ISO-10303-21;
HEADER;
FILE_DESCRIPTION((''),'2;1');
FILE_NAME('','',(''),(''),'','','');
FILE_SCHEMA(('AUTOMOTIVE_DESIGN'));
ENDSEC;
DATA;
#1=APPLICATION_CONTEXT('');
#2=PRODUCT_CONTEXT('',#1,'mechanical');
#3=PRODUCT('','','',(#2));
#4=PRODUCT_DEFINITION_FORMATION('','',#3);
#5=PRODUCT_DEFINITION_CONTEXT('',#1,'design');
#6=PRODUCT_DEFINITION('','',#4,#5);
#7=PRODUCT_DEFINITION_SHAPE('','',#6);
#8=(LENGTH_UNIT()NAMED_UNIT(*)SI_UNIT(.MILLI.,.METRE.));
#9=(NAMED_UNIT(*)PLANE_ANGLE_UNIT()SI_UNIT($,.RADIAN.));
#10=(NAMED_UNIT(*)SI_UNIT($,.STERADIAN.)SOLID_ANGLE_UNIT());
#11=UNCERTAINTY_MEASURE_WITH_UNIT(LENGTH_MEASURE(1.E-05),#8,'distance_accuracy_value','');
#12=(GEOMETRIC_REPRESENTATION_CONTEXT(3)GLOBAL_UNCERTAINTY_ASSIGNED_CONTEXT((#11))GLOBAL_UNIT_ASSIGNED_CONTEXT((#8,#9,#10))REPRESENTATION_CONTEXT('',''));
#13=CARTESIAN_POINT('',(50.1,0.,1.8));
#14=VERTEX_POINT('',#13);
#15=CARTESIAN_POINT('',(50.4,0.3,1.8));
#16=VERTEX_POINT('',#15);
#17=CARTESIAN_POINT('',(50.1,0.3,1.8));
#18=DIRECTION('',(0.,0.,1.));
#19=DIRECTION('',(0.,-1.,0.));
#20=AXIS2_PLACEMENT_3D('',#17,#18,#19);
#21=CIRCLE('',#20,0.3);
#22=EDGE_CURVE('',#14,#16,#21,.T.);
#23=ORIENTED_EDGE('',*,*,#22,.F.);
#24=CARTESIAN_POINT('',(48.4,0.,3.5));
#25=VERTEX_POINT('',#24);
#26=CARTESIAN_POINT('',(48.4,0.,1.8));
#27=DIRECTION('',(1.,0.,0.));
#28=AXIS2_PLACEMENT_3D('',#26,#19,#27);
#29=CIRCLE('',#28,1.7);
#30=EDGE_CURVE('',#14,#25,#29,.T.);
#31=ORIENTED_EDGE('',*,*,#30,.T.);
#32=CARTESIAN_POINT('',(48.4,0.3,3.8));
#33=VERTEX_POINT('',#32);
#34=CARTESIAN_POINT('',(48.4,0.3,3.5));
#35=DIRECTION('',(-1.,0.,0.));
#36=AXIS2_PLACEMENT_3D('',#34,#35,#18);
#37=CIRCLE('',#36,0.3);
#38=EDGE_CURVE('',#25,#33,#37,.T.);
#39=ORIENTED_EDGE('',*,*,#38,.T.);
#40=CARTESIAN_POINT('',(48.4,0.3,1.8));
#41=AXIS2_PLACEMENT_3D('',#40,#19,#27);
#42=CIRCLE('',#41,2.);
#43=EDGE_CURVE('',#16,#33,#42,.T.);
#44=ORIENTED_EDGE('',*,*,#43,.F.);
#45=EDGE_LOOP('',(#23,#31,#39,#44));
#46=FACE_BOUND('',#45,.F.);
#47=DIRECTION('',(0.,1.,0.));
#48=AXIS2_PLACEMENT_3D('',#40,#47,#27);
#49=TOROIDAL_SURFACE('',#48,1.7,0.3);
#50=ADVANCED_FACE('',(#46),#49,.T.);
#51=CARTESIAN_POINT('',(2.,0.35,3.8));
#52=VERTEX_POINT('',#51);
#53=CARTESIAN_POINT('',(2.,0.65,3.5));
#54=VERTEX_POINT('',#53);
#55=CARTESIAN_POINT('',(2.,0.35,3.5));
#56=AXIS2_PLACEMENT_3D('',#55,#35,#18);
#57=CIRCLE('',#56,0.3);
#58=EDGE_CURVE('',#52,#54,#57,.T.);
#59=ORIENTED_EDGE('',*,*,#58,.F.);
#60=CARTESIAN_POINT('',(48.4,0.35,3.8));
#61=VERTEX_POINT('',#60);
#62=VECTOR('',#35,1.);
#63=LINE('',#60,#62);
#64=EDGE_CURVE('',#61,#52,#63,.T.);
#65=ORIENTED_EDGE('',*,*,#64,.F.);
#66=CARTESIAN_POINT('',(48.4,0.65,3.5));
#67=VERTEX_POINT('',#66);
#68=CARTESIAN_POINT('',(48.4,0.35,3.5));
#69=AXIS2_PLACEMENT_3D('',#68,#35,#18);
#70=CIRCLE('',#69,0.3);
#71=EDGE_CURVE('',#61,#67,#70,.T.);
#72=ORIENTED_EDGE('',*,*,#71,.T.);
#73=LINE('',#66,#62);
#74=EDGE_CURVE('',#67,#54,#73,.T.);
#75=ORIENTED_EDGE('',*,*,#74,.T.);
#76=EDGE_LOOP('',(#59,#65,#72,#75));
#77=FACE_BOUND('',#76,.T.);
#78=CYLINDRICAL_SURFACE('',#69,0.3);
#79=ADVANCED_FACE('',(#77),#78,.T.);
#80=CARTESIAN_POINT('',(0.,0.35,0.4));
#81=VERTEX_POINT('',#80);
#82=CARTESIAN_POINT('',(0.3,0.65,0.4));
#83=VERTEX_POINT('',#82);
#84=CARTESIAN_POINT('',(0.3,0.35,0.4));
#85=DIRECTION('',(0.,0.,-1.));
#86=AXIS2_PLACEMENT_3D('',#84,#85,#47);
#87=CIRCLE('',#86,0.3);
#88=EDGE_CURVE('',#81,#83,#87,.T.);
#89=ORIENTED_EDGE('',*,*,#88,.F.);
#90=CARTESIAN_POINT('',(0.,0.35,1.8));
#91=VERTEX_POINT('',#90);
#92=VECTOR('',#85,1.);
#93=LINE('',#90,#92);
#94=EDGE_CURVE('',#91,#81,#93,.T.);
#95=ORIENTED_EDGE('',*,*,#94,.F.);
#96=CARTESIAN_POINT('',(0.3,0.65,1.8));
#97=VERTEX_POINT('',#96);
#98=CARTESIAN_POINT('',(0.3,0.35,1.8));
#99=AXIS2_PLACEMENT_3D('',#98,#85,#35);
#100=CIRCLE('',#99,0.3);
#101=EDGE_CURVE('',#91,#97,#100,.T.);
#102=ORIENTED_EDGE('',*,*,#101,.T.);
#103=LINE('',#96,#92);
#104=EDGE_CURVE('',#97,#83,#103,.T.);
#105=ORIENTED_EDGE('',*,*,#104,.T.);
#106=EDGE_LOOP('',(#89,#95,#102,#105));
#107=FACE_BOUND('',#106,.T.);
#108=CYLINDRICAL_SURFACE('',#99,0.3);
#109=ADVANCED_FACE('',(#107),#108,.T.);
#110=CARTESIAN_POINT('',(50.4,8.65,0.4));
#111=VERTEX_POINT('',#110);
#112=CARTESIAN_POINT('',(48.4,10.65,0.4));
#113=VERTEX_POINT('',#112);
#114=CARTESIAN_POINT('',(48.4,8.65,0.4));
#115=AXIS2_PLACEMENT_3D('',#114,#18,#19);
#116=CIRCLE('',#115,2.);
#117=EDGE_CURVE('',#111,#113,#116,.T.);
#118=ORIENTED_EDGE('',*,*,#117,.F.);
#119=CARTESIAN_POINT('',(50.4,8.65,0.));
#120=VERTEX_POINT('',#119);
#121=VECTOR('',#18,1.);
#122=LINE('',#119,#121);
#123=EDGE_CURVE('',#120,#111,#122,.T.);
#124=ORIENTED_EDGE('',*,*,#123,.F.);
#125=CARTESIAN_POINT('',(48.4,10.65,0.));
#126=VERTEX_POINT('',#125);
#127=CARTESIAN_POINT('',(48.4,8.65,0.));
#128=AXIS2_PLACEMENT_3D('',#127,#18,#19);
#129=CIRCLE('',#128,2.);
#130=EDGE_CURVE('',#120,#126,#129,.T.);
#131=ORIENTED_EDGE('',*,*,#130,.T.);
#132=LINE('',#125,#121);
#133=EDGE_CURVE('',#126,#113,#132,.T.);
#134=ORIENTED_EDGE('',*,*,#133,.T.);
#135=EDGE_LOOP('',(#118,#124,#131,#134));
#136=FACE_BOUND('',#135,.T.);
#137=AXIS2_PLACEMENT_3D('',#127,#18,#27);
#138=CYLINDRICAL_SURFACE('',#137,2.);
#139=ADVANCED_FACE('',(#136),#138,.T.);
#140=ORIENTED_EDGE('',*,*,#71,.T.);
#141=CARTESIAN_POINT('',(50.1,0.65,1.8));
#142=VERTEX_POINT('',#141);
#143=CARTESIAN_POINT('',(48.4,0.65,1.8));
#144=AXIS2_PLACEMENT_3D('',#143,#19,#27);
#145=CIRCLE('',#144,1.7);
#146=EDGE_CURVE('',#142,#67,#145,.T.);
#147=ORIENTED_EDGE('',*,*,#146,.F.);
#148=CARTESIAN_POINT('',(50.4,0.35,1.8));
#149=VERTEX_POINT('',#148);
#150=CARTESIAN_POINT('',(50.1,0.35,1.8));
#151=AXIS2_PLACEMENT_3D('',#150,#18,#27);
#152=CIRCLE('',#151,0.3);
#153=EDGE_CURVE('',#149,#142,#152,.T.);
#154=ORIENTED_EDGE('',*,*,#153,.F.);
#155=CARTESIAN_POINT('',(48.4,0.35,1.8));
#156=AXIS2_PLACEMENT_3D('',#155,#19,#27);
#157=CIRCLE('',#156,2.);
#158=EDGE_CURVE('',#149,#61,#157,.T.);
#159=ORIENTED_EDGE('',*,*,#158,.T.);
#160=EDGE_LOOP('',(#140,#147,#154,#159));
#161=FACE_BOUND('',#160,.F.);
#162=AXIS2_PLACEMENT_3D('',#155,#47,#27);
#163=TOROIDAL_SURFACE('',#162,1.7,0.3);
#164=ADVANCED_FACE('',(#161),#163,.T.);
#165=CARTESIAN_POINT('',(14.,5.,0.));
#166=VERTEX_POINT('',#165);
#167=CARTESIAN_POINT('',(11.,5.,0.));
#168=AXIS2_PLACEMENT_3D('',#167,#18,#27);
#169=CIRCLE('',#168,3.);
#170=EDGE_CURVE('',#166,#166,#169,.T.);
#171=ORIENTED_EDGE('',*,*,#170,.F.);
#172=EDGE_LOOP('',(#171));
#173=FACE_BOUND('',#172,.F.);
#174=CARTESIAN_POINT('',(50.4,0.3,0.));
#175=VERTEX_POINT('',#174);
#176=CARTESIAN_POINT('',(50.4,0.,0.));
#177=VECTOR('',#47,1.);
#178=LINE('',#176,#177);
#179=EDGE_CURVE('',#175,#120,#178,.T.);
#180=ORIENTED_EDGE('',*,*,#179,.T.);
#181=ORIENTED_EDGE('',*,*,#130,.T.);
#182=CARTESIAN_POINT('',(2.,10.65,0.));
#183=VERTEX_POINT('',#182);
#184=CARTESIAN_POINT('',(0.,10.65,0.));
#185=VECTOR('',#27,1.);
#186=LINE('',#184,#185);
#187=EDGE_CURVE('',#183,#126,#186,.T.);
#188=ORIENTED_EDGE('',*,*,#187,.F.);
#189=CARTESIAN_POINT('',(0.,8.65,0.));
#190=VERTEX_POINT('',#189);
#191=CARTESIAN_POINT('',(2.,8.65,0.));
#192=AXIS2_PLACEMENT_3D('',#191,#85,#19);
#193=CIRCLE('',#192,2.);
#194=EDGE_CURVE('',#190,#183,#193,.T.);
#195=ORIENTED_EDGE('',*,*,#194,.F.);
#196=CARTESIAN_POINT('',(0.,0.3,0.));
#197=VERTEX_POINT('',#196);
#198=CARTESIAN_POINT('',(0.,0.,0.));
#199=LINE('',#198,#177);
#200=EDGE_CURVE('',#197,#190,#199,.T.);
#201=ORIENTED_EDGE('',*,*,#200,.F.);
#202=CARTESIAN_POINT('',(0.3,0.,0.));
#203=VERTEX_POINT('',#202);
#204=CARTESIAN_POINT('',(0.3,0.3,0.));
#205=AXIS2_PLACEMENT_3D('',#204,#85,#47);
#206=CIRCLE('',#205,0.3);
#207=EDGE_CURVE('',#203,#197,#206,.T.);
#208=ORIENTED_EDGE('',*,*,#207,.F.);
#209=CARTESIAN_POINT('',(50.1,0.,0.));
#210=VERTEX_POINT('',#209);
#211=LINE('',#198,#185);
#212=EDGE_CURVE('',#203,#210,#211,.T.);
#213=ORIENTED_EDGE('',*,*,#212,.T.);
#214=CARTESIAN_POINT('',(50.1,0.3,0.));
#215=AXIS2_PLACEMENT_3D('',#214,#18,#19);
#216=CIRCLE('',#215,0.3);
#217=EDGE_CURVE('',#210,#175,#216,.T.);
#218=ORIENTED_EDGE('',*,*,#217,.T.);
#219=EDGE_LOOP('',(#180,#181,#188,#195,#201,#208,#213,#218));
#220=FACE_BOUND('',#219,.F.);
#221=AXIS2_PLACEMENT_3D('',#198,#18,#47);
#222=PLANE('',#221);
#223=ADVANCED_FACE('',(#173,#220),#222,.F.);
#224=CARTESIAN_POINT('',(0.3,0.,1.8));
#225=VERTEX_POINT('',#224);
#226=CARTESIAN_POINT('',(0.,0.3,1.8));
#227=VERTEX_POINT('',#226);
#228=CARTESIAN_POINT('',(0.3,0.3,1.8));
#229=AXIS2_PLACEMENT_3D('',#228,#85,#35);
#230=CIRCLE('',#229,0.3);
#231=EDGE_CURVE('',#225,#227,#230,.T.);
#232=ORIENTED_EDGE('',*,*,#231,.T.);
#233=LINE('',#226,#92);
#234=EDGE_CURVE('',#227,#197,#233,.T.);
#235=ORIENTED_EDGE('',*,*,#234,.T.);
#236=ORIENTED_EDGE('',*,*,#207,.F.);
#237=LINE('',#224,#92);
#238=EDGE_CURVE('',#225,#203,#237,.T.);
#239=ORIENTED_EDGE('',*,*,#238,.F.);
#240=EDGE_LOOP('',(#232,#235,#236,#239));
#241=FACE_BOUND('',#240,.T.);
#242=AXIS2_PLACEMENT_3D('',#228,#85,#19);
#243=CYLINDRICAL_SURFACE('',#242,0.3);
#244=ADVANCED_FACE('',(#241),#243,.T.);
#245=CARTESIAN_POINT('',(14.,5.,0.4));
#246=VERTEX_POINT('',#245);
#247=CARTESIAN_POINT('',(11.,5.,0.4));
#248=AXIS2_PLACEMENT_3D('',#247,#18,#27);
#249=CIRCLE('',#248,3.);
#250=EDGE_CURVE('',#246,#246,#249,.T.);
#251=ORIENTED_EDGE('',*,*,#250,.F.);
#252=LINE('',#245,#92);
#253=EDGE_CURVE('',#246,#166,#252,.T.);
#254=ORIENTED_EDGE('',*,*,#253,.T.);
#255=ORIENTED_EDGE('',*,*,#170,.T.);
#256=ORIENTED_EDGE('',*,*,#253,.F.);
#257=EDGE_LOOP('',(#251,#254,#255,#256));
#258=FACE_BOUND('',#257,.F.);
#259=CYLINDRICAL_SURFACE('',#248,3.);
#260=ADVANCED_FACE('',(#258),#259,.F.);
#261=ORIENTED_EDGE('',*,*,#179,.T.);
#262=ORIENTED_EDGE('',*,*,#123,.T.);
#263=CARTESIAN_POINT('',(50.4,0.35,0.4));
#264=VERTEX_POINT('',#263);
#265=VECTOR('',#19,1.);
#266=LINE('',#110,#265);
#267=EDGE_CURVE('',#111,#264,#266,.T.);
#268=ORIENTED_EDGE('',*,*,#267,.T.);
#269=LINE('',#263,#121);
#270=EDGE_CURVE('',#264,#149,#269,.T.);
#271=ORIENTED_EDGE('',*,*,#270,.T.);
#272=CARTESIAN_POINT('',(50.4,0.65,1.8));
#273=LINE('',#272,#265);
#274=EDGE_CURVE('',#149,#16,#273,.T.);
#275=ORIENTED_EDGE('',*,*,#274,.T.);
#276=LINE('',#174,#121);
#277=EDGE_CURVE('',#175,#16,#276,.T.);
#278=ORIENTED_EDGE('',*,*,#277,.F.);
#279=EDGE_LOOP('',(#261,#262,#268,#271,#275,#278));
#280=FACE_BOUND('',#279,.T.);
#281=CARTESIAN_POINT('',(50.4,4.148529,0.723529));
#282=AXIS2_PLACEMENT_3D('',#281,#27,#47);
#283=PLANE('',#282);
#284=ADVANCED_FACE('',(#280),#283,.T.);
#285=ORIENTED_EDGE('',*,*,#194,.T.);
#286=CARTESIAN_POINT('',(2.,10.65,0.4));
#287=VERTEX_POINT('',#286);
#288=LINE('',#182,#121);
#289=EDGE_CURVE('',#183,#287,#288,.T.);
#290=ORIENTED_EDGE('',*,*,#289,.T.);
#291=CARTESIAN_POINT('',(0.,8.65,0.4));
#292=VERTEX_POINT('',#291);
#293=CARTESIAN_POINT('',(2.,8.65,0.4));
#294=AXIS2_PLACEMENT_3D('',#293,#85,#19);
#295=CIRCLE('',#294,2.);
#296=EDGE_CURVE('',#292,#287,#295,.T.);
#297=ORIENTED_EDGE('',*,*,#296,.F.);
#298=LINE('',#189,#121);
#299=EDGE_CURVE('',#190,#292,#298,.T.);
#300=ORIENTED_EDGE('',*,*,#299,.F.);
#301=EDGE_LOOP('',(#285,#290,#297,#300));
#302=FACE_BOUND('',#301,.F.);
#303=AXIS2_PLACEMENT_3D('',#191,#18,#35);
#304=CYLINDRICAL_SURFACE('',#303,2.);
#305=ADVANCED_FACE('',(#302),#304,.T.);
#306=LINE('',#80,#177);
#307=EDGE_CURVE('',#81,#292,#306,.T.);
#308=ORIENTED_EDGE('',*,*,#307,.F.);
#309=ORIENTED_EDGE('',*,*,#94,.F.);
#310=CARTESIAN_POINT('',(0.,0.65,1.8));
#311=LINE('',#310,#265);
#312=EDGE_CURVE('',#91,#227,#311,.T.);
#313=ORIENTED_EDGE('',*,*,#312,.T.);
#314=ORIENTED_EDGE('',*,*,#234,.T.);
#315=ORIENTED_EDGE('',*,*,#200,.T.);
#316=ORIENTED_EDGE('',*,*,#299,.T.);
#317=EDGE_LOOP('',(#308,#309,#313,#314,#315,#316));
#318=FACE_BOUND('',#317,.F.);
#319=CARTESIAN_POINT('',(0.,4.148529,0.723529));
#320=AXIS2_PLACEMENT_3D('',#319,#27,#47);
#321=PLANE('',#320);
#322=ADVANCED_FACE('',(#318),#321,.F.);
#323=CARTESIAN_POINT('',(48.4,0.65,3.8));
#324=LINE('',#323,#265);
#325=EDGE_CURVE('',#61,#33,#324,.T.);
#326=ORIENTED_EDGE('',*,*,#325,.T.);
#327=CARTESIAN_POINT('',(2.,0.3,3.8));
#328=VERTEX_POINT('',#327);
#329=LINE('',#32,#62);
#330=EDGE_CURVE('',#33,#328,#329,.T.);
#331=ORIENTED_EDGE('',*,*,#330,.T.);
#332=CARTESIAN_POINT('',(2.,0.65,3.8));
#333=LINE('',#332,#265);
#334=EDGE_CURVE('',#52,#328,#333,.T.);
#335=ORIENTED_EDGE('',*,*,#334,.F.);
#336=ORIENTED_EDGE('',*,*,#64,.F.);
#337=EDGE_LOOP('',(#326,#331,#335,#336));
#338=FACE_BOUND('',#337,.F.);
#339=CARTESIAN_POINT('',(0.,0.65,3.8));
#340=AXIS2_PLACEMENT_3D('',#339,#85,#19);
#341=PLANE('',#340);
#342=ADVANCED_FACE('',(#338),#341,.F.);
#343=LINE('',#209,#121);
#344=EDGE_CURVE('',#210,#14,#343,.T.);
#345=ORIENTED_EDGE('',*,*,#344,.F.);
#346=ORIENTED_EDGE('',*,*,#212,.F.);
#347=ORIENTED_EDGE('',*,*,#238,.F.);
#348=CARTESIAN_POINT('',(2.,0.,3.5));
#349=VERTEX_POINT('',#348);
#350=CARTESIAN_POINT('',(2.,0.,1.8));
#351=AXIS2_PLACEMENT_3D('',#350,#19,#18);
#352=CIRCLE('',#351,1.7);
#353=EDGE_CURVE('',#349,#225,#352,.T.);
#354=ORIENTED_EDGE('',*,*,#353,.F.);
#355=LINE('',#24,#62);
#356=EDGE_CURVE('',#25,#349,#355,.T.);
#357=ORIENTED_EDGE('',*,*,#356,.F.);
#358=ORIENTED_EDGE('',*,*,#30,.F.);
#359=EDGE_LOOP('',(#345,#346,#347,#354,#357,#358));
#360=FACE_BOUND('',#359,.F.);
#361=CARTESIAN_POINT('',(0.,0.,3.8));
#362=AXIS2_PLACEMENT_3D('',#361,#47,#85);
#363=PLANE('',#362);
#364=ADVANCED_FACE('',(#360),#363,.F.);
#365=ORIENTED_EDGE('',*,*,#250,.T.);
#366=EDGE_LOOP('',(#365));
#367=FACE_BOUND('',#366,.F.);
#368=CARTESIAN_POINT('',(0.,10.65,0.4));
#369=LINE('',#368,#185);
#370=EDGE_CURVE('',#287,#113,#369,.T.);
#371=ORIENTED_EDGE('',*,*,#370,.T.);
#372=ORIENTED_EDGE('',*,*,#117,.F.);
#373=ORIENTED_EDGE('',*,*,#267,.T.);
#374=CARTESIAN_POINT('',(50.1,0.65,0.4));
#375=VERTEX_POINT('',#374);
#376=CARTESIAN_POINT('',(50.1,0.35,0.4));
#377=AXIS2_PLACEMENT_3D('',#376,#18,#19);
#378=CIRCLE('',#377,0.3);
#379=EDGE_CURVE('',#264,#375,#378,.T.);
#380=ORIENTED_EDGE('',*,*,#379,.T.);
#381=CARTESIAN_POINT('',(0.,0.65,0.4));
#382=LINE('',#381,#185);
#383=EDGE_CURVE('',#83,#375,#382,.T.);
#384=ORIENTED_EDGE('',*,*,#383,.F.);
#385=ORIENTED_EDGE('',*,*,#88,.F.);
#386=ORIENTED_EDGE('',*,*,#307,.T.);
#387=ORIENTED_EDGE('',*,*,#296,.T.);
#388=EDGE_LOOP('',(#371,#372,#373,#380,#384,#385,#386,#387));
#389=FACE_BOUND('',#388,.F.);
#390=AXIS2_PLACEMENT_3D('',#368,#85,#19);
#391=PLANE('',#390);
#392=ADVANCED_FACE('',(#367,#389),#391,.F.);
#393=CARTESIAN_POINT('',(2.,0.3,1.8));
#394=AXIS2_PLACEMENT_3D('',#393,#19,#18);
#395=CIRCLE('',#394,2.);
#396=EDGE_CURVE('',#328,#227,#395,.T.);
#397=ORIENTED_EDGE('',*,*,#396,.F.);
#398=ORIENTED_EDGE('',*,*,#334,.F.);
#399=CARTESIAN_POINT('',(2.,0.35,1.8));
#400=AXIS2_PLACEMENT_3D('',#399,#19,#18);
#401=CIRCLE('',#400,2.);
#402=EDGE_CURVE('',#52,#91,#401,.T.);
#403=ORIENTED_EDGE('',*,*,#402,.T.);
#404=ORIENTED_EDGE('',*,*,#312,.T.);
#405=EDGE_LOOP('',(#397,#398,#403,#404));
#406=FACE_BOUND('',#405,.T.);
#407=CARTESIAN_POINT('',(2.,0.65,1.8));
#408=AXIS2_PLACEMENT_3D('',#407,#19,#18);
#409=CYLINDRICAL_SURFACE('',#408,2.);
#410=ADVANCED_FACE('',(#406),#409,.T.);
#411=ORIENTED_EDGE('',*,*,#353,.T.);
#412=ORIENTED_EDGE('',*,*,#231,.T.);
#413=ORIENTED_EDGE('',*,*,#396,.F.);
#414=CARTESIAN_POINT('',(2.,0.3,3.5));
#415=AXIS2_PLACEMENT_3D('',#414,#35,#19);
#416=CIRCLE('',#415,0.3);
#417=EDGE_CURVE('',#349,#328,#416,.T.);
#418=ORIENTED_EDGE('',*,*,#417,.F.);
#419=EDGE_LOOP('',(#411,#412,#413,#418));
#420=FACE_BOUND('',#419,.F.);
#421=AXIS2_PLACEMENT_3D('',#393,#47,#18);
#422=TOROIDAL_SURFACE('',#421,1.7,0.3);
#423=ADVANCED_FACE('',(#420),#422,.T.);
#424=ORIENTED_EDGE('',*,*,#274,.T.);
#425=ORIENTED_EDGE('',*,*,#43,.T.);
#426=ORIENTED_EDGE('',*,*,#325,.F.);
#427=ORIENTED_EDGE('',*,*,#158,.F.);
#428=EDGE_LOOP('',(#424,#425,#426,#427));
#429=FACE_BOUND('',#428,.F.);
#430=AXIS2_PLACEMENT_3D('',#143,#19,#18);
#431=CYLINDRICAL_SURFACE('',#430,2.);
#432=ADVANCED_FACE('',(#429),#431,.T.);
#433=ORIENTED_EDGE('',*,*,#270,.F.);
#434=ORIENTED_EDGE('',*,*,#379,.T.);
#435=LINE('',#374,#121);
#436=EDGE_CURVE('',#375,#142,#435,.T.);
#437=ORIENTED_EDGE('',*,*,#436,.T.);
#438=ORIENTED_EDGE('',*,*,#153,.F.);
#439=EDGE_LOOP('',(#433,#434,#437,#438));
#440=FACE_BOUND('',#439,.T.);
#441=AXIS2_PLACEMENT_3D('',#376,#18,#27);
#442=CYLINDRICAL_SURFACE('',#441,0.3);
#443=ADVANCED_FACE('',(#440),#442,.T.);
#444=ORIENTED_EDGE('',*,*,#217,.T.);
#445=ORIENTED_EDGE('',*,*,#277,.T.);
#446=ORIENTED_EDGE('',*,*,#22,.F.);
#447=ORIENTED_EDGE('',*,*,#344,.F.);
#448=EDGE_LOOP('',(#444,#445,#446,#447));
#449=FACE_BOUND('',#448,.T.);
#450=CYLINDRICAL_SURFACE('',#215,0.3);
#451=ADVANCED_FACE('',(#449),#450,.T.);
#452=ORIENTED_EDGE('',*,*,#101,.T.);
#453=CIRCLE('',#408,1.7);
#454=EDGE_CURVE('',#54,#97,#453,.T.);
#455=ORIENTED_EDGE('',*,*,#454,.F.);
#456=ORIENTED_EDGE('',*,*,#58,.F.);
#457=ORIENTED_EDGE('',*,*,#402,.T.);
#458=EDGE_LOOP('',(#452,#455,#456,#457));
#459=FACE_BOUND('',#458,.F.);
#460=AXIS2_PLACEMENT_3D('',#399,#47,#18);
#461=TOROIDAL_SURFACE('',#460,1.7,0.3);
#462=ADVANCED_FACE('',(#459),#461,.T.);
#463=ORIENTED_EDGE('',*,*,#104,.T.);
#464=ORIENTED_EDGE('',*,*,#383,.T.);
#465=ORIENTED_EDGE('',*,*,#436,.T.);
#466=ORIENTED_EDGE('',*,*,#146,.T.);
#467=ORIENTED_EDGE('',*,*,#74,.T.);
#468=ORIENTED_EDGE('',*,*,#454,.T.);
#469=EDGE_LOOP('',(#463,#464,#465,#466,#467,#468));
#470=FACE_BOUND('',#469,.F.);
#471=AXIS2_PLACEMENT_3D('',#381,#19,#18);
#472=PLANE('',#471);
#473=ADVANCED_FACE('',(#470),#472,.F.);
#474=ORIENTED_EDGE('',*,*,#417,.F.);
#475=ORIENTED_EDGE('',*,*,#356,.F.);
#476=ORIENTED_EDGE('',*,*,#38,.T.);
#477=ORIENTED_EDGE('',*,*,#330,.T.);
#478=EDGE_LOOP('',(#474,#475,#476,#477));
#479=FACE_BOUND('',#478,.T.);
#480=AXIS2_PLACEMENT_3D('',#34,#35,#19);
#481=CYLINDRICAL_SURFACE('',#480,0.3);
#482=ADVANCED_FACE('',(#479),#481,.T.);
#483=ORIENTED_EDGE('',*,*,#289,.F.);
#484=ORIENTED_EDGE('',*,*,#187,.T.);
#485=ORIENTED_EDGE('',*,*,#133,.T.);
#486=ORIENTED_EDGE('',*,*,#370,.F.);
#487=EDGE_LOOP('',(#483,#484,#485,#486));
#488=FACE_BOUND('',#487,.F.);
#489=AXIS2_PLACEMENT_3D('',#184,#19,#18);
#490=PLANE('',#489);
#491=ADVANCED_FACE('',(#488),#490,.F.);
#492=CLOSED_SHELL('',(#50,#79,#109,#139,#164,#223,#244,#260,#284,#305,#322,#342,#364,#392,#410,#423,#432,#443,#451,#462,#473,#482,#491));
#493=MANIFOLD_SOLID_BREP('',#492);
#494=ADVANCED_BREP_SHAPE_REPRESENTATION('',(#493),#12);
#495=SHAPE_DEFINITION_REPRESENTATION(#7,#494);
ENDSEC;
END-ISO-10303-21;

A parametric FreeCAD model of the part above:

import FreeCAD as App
import Part
import Sketcher

V = App.Vector


def edges_at(feature, points):
    """Names of the edges that pass closest to the given points."""
    edges = feature.Shape.Edges
    near = lambda p: min(range(len(edges)), key=lambda i: edges[i].distToShape(Part.Vertex(*p))[0])
    return sorted({f"Edge{near(p) + 1}" for p in points})


def add_polygon(sketch, points):
    """Adds a closed chain of lines whose ends are joined by coincident constraints."""
    first, n = sketch.GeometryCount, len(points)
    for a, b in zip(points, points[1:] + points[:1]):
        sketch.addGeometry(Part.LineSegment(App.Vector(*a, 0), App.Vector(*b, 0)), False)
    for i in range(n):
        sketch.addConstraint(Sketcher.Constraint("Coincident", first + i, 2, first + (i + 1) % n, 1))

doc = App.newDocument("Part")
body = doc.addObject("PartDesign::Body", "Body")

# Sketch on YZ plane
sketch1 = body.newObject("Sketcher::SketchObject", "Sketch")
sketch1.AttachmentSupport = (doc.getObject("YZ_Plane"), [""])
sketch1.MapMode = "FlatFace"
add_polygon(sketch1, [(0, 3.8), (0, 0), (10.65, 0), (10.65, 0.4), (0.65, 0.4), (0.65, 3.8)])  # lines 0-5
sketch1.addConstraint(Sketcher.Constraint("Vertical", 0))
sketch1.addConstraint(Sketcher.Constraint("Horizontal", 1))
sketch1.addConstraint(Sketcher.Constraint("Vertical", 2))
sketch1.addConstraint(Sketcher.Constraint("Horizontal", 3))
sketch1.addConstraint(Sketcher.Constraint("Vertical", 4))
sketch1.addConstraint(Sketcher.Constraint("Horizontal", 5))
sketch1.addConstraint(Sketcher.Constraint("Coincident", 0, 2, -1, 1))
sketch1.addConstraint(Sketcher.Constraint("DistanceX", 3, 2, 3, 1, 10.0))
sketch1.addConstraint(Sketcher.Constraint("DistanceY", 0, 2, 0, 1, 3.8))
sketch1.addConstraint(Sketcher.Constraint("DistanceY", 2, 1, 2, 2, 0.4))
sketch1.addConstraint(Sketcher.Constraint("DistanceX", 1, 1, 1, 2, 10.65))
pad1 = body.newObject("PartDesign::Pad", "Pad")
pad1.Profile = sketch1
pad1.Length = 50.4

# Sketch on XY plane
sketch2 = body.newObject("Sketcher::SketchObject", "Sketch001")
sketch2.AttachmentSupport = (doc.getObject("XY_Plane"), [""])
sketch2.MapMode = "FlatFace"
sketch2.AttachmentOffset = App.Placement(V(0, 0, 0.4), App.Rotation())
sketch2.addGeometry(Part.Circle(V(11, 5, 0), V(0, 0, 1), 3), False)
sketch2.addConstraint(Sketcher.Constraint("Diameter", 0, 6.0))
sketch2.addConstraint(Sketcher.Constraint("DistanceX", -1, 1, 0, 3, 11.0))
sketch2.addConstraint(Sketcher.Constraint("DistanceY", -1, 1, 0, 3, 5.0))
pocket1 = body.newObject("PartDesign::Pocket", "Pocket")
pocket1.Profile = sketch2
pocket1.Type = "ThroughAll"
doc.recompute()

fillet = body.newObject("PartDesign::Fillet", "Fillet")
fillet.Base = (pocket1, edges_at(pocket1, [
    (0, 10.65, 0.2),
    (50.4, 10.65, 0.2),
    (50.4, 0.325, 3.8),
    (0, 0.325, 3.8),
]))
fillet.Radius = 2
doc.recompute()

fillet2 = body.newObject("PartDesign::Fillet", "Fillet001")
fillet2.Base = (fillet, edges_at(fillet, [
    (0.586, 0, 3.214),
    (49.814, 0, 3.214),
    (50.4, 0.65, 1.1),
    (0, 0.65, 1.1),
]))
fillet2.Radius = 0.3

doc.recompute()
